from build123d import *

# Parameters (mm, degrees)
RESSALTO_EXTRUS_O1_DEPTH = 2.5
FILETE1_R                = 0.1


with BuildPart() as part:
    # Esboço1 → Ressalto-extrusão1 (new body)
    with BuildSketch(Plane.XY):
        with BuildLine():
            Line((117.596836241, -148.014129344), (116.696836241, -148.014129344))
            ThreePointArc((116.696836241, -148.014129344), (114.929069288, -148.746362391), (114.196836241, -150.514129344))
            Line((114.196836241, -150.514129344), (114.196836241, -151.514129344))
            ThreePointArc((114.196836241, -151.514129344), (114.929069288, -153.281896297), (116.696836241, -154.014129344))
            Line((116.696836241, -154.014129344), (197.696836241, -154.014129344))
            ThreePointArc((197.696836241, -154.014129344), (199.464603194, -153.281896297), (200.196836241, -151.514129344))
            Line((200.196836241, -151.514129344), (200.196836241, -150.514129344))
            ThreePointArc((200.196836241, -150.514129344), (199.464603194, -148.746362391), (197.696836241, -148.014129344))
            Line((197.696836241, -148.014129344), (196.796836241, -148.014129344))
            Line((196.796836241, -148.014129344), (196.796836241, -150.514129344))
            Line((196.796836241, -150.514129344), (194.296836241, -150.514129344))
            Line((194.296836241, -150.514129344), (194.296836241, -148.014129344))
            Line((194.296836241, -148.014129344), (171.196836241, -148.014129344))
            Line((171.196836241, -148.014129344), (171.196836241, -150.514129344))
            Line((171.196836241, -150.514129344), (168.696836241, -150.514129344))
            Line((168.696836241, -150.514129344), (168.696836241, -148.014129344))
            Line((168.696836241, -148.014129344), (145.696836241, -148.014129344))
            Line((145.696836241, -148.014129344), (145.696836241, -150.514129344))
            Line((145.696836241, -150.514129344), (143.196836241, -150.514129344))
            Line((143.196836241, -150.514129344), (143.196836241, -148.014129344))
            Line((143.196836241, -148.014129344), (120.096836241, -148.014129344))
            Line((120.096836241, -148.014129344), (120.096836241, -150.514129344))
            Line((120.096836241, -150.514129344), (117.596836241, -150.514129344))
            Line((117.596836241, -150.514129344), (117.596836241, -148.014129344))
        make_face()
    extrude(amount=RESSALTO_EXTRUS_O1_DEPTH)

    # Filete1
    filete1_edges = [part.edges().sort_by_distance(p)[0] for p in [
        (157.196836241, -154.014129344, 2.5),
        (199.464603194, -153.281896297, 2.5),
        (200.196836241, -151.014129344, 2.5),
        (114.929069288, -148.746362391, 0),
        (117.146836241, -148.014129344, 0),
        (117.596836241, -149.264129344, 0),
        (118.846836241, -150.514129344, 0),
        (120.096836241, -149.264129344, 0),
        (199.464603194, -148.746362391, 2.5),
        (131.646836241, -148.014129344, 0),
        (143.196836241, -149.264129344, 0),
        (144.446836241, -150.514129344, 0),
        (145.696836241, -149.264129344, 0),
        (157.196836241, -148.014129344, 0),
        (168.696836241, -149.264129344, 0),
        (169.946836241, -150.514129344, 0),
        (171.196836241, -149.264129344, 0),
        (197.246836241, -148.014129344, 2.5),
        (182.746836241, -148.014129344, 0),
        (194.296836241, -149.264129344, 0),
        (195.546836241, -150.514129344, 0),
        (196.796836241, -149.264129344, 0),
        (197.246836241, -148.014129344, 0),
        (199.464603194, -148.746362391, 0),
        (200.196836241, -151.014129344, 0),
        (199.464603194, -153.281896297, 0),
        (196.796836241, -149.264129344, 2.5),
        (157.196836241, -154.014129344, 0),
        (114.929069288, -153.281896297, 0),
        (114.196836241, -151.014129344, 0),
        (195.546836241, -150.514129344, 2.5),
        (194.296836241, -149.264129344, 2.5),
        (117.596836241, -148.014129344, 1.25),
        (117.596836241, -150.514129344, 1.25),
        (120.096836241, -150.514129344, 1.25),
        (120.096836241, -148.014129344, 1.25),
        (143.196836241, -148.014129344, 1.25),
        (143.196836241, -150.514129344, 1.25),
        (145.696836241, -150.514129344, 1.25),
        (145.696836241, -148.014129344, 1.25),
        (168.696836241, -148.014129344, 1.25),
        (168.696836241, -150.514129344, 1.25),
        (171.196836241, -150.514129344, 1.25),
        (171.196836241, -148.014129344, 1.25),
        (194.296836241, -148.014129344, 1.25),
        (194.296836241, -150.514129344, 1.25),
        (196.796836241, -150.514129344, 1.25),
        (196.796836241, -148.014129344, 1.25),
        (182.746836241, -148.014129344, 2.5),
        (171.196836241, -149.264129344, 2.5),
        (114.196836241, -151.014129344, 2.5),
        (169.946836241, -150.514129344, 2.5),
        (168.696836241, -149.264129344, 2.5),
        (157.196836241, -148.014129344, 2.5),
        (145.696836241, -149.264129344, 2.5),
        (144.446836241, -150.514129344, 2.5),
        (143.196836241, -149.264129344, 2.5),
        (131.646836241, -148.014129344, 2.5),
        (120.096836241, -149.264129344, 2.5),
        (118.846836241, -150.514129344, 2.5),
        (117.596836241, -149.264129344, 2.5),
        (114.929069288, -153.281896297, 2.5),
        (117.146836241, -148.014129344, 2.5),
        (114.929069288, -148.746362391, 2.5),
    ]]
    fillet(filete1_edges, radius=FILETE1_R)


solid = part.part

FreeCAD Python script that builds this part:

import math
import FreeCAD as App
import Part
import Sketcher
Q = App.Units.Quantity

doc = App.newDocument("Part")
body = doc.addObject("PartDesign::Body", "Body")

# Sketch on XY plane
sketch1 = doc.addObject("Sketcher::SketchObject", "Sketch")
body.addObject(sketch1)
sketch1.AttachmentSupport = (doc.XY_Plane, [""])
sketch1.MapMode = "FlatFace"
sketch1.addGeometry(Part.LineSegment(App.Vector(117.6, -148, 0), App.Vector(116.7, -148, 0)), False)
sketch1.addGeometry(Part.ArcOfCircle(Part.Circle(App.Vector(116.7, -150.5, 0), App.Vector(0, 0, 1), 2.5), math.radians(90), math.radians(180)), False)
sketch1.addGeometry(Part.LineSegment(App.Vector(114.2, -150.5, 0), App.Vector(114.2, -151.5, 0)), False)
sketch1.addGeometry(Part.ArcOfCircle(Part.Circle(App.Vector(116.7, -151.5, 0), App.Vector(0, 0, 1), 2.5), math.radians(180), math.radians(270)), False)
sketch1.addGeometry(Part.LineSegment(App.Vector(116.7, -154, 0), App.Vector(197.7, -154, 0)), False)
sketch1.addGeometry(Part.ArcOfCircle(Part.Circle(App.Vector(197.7, -151.5, 0), App.Vector(0, 0, 1), 2.5), math.radians(-90), math.radians(0)), False)
sketch1.addGeometry(Part.LineSegment(App.Vector(200.2, -151.5, 0), App.Vector(200.2, -150.5, 0)), False)
sketch1.addGeometry(Part.ArcOfCircle(Part.Circle(App.Vector(197.7, -150.5, 0), App.Vector(0, 0, 1), 2.5), math.radians(0), math.radians(90)), False)
sketch1.addGeometry(Part.LineSegment(App.Vector(197.7, -148, 0), App.Vector(196.8, -148, 0)), False)
sketch1.addGeometry(Part.LineSegment(App.Vector(196.8, -148, 0), App.Vector(196.8, -150.5, 0)), False)
sketch1.addGeometry(Part.LineSegment(App.Vector(196.8, -150.5, 0), App.Vector(194.3, -150.5, 0)), False)
sketch1.addGeometry(Part.LineSegment(App.Vector(194.3, -150.5, 0), App.Vector(194.3, -148, 0)), False)
sketch1.addGeometry(Part.LineSegment(App.Vector(194.3, -148, 0), App.Vector(171.2, -148, 0)), False)
sketch1.addGeometry(Part.LineSegment(App.Vector(171.2, -148, 0), App.Vector(171.2, -150.5, 0)), False)
sketch1.addGeometry(Part.LineSegment(App.Vector(171.2, -150.5, 0), App.Vector(168.7, -150.5, 0)), False)
sketch1.addGeometry(Part.LineSegment(App.Vector(168.7, -150.5, 0), App.Vector(168.7, -148, 0)), False)
sketch1.addGeometry(Part.LineSegment(App.Vector(168.7, -148, 0), App.Vector(145.7, -148, 0)), False)
sketch1.addGeometry(Part.LineSegment(App.Vector(145.7, -148, 0), App.Vector(145.7, -150.5, 0)), False)
sketch1.addGeometry(Part.LineSegment(App.Vector(145.7, -150.5, 0), App.Vector(143.2, -150.5, 0)), False)
sketch1.addGeometry(Part.LineSegment(App.Vector(143.2, -150.5, 0), App.Vector(143.2, -148, 0)), False)
sketch1.addGeometry(Part.LineSegment(App.Vector(143.2, -148, 0), App.Vector(120.1, -148, 0)), False)
sketch1.addGeometry(Part.LineSegment(App.Vector(120.1, -148, 0), App.Vector(120.1, -150.5, 0)), False)
sketch1.addGeometry(Part.LineSegment(App.Vector(120.1, -150.5, 0), App.Vector(117.6, -150.5, 0)), False)
sketch1.addGeometry(Part.LineSegment(App.Vector(117.6, -150.5, 0), App.Vector(117.6, -148, 0)), False)
sketch1.addConstraint(Sketcher.Constraint("Tangent", 0, 2, 1, 1))
sketch1.addConstraint(Sketcher.Constraint("Tangent", 1, 2, 2, 1))
sketch1.addConstraint(Sketcher.Constraint("Tangent", 2, 2, 3, 1))
sketch1.addConstraint(Sketcher.Constraint("Tangent", 3, 2, 4, 1))
sketch1.addConstraint(Sketcher.Constraint("Tangent", 4, 2, 5, 1))
sketch1.addConstraint(Sketcher.Constraint("Tangent", 5, 2, 6, 1))
sketch1.addConstraint(Sketcher.Constraint("Tangent", 6, 2, 7, 1))
sketch1.addConstraint(Sketcher.Constraint("Tangent", 7, 2, 8, 1))
sketch1.addConstraint(Sketcher.Constraint("Coincident", 8, 2, 9, 1))
sketch1.addConstraint(Sketcher.Constraint("Coincident", 9, 2, 10, 1))
sketch1.addConstraint(Sketcher.Constraint("Coincident", 10, 2, 11, 1))
sketch1.addConstraint(Sketcher.Constraint("Coincident", 11, 2, 12, 1))
sketch1.addConstraint(Sketcher.Constraint("Coincident", 12, 2, 13, 1))
sketch1.addConstraint(Sketcher.Constraint("Coincident", 13, 2, 14, 1))
sketch1.addConstraint(Sketcher.Constraint("Coincident", 14, 2, 15, 1))
sketch1.addConstraint(Sketcher.Constraint("Coincident", 15, 2, 16, 1))
sketch1.addConstraint(Sketcher.Constraint("Coincident", 16, 2, 17, 1))
sketch1.addConstraint(Sketcher.Constraint("Coincident", 17, 2, 18, 1))
sketch1.addConstraint(Sketcher.Constraint("Coincident", 18, 2, 19, 1))
sketch1.addConstraint(Sketcher.Constraint("Coincident", 19, 2, 20, 1))
sketch1.addConstraint(Sketcher.Constraint("Coincident", 20, 2, 21, 1))
sketch1.addConstraint(Sketcher.Constraint("Coincident", 21, 2, 22, 1))
sketch1.addConstraint(Sketcher.Constraint("Coincident", 22, 2, 23, 1))
sketch1.addConstraint(Sketcher.Constraint("Coincident", 23, 2, 0, 1))
sketch1.addConstraint(Sketcher.Constraint("Horizontal", 0))
sketch1.addConstraint(Sketcher.Constraint("Vertical", 2))
sketch1.addConstraint(Sketcher.Constraint("Horizontal", 4))
sketch1.addConstraint(Sketcher.Constraint("Vertical", 6))
sketch1.addConstraint(Sketcher.Constraint("Horizontal", 8))
sketch1.addConstraint(Sketcher.Constraint("Vertical", 9))
sketch1.addConstraint(Sketcher.Constraint("Horizontal", 10))
sketch1.addConstraint(Sketcher.Constraint("Vertical", 11))
sketch1.addConstraint(Sketcher.Constraint("Horizontal", 12))
sketch1.addConstraint(Sketcher.Constraint("Vertical", 13))
sketch1.addConstraint(Sketcher.Constraint("Horizontal", 14))
sketch1.addConstraint(Sketcher.Constraint("Vertical", 15))
sketch1.addConstraint(Sketcher.Constraint("Horizontal", 16))
sketch1.addConstraint(Sketcher.Constraint("Vertical", 17))
sketch1.addConstraint(Sketcher.Constraint("Horizontal", 18))
sketch1.addConstraint(Sketcher.Constraint("Vertical", 19))
sketch1.addConstraint(Sketcher.Constraint("Horizontal", 20))
sketch1.addConstraint(Sketcher.Constraint("Vertical", 21))
sketch1.addConstraint(Sketcher.Constraint("Horizontal", 22))
sketch1.addConstraint(Sketcher.Constraint("Vertical", 23))
sketch1.addConstraint(Sketcher.Constraint("Equal", 1, 3))
sketch1.addConstraint(Sketcher.Constraint("Equal", 3, 5))
sketch1.addConstraint(Sketcher.Constraint("Equal", 5, 7))
sketch1.addConstraint(Sketcher.Constraint("Horizontal", 1, 3, 7, 3))
sketch1.addConstraint(Sketcher.Constraint("Horizontal", 6, 2, 9, 2))
sketch1.addConstraint(Sketcher.Constraint("Horizontal", 8, 2, 11, 2))
sketch1.addConstraint(Sketcher.Constraint("Horizontal", 10, 2, 13, 2))
sketch1.addConstraint(Sketcher.Constraint("Horizontal", 12, 2, 15, 2))
sketch1.addConstraint(Sketcher.Constraint("Horizontal", 14, 2, 17, 2))
sketch1.addConstraint(Sketcher.Constraint("Horizontal", 16, 2, 19, 2))
sketch1.addConstraint(Sketcher.Constraint("Horizontal", 18, 2, 21, 2))
sketch1.addConstraint(Sketcher.Constraint("Equal", 0, 8))
sketch1.addConstraint(Sketcher.Constraint("Equal", 10, 14))
sketch1.addConstraint(Sketcher.Constraint("Equal", 14, 18))
sketch1.addConstraint(Sketcher.Constraint("Equal", 12, 20))
sketch1.addConstraint(Sketcher.Constraint("Equal", 18, 22))
sketch1.addConstraint(Sketcher.Constraint("Equal", 22, 9))
sketch1.addConstraint(Sketcher.Constraint("Radius", 1, Q("2.5 mm")))
sketch1.addConstraint(Sketcher.Constraint("DistanceX", 4, 1, 4, 2, Q("81 mm")))
sketch1.addConstraint(Sketcher.Constraint("DistanceX", 16, 2, 16, 1, Q("23 mm")))
sketch1.addConstraint(Sketcher.Constraint("DistanceY", 2, 2, 2, 1, Q("1 mm")))
sketch1.addConstraint(Sketcher.Constraint("DistanceX", 0, 2, 0, 1, Q("0.9 mm")))
sketch1.addConstraint(Sketcher.Constraint("DistanceY", 1, 3, -1, 1, Q("150.514129 mm")))
sketch1.addConstraint(Sketcher.Constraint("DistanceX", -1, 1, 1, 3, Q("116.696836 mm")))
pad1 = doc.addObject("PartDesign::Pad", "Pad")
body.addObject(pad1)
pad1.Profile = sketch1
pad1.Length = 2.5
doc.recompute()

fillet = doc.addObject("PartDesign::Fillet", "Fillet")
body.addObject(fillet)
fillet.Base = (pad1, ["Edge1"])
fillet.UseAllEdges = True
fillet.Radius = 0.1

doc.recompute()
